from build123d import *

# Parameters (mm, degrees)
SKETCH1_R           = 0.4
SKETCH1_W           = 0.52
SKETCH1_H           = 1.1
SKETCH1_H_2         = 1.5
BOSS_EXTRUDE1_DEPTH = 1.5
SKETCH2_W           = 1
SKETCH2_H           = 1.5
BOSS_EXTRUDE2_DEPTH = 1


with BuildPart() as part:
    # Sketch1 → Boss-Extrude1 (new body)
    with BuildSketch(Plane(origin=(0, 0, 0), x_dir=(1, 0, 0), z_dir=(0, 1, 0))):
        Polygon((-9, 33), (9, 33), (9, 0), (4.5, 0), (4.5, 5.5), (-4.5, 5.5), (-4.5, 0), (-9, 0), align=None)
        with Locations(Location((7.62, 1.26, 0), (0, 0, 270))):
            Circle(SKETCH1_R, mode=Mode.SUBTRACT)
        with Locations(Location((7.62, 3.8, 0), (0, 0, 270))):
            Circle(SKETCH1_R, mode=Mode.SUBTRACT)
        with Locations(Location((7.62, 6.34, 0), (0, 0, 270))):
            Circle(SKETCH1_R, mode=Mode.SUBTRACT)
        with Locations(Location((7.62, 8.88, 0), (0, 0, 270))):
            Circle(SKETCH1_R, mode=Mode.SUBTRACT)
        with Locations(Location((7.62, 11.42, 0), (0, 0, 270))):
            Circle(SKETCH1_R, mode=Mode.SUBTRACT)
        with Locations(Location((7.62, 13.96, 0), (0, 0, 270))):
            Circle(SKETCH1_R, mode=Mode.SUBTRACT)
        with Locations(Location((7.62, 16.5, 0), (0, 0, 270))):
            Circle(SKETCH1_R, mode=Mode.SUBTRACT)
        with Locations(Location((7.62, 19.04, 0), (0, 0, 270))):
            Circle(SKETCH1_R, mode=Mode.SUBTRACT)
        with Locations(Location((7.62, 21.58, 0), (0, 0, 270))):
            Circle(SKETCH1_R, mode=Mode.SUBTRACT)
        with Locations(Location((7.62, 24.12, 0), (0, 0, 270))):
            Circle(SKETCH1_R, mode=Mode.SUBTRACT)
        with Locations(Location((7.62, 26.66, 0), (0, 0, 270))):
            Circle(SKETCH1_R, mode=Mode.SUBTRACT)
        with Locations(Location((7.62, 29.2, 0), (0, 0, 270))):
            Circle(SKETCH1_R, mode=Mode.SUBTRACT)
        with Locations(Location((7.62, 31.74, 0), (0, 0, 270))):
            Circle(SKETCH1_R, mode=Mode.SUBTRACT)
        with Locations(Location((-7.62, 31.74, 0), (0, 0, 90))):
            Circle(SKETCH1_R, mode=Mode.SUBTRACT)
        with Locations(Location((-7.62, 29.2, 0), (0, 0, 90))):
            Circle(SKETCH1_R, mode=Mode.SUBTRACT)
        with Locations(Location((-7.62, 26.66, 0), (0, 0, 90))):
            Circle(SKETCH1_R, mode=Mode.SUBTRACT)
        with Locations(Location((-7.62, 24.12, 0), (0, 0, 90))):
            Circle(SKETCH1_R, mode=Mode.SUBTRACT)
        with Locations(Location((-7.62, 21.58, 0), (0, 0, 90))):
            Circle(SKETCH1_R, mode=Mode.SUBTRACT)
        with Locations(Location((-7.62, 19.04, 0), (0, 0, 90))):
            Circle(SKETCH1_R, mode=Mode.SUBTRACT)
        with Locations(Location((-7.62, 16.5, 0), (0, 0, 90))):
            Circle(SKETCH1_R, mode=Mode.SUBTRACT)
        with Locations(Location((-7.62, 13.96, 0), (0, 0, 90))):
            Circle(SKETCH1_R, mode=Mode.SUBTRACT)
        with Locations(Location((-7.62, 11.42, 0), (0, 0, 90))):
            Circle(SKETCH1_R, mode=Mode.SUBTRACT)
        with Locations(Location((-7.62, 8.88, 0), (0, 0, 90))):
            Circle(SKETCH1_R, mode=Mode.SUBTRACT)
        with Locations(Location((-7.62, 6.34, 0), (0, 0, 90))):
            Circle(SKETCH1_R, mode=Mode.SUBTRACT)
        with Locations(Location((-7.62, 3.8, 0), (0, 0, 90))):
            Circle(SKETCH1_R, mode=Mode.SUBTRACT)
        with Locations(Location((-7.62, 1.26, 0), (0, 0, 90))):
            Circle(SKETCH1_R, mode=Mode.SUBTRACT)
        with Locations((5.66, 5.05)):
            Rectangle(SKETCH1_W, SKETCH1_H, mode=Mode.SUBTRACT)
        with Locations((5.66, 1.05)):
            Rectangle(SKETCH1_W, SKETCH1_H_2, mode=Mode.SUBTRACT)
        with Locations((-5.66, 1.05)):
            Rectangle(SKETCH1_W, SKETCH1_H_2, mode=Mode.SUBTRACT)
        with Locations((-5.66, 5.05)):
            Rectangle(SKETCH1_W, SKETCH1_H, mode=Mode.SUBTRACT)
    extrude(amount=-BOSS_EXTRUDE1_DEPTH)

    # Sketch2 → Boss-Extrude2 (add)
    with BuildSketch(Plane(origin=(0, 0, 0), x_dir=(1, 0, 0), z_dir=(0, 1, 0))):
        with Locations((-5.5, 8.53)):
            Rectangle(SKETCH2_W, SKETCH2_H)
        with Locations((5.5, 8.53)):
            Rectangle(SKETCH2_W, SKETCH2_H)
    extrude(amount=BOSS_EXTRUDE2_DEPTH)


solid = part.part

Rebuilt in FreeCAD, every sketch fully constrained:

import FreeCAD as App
import Part
import Sketcher

V = App.Vector
Q = App.Units.Quantity


def add_polygon(sketch, points):
    """Adds a closed chain of lines whose ends are joined by coincident constraints."""
    first, n = sketch.GeometryCount, len(points)
    for a, b in zip(points, points[1:] + points[:1]):
        sketch.addGeometry(Part.LineSegment(App.Vector(*a, 0), App.Vector(*b, 0)), False)
    for i in range(n):
        sketch.addConstraint(Sketcher.Constraint("Coincident", first + i, 2, first + (i + 1) % n, 1))

doc = App.newDocument("Part")
body = doc.addObject("PartDesign::Body", "Body")

# Sketch on XZ plane
sketch1 = doc.addObject("Sketcher::SketchObject", "Sketch")
body.addObject(sketch1)
sketch1.AttachmentSupport = (doc.XZ_Plane, [""])
sketch1.MapMode = "FlatFace"
add_polygon(sketch1, [(9, -33), (-9, -33), (-9, 0), (-4.5, 0), (-4.5, -5.5), (4.5, -5.5), (4.5, 0), (9, 0)])  # lines 0-7
sketch1.addGeometry(Part.Circle(V(7.62, -1.26, 0), V(0, 0, 1), 0.4), False)  # 8
sketch1.addGeometry(Part.Circle(V(7.62, -3.8, 0), V(0, 0, 1), 0.4), False)  # 9
add_polygon(sketch1, [(5.4, -0.3), (5.4, -1.8), (5.92, -1.8), (5.92, -0.3)])  # lines 10-13
sketch1.addGeometry(Part.Circle(V(7.62, -6.34, 0), V(0, 0, 1), 0.4), False)  # 14
add_polygon(sketch1, [(5.4, -4.5), (5.4, -5.6), (5.92, -5.6), (5.92, -4.5)])  # lines 15-18
sketch1.addGeometry(Part.Circle(V(7.62, -8.88, 0), V(0, 0, 1), 0.4), False)  # 19
sketch1.addGeometry(Part.Circle(V(7.62, -11.42, 0), V(0, 0, 1), 0.4), False)  # 20
sketch1.addGeometry(Part.Circle(V(7.62, -13.96, 0), V(0, 0, 1), 0.4), False)  # 21
add_polygon(sketch1, [(-5.92, -0.3), (-5.92, -1.8), (-5.4, -1.8), (-5.4, -0.3)])  # lines 22-25
sketch1.addGeometry(Part.Circle(V(-7.62, -1.26, 0), V(0, 0, 1), 0.4), False)  # 26
sketch1.addGeometry(Part.Circle(V(-7.62, -3.8, 0), V(0, 0, 1), 0.4), False)  # 27
add_polygon(sketch1, [(-5.92, -4.5), (-5.92, -5.6), (-5.4, -5.6), (-5.4, -4.5)])  # lines 28-31
sketch1.addGeometry(Part.Circle(V(-7.62, -6.34, 0), V(0, 0, 1), 0.4), False)  # 32
sketch1.addGeometry(Part.Circle(V(-7.62, -8.88, 0), V(0, 0, 1), 0.4), False)  # 33
sketch1.addGeometry(Part.Circle(V(-7.62, -11.42, 0), V(0, 0, 1), 0.4), False)  # 34
sketch1.addGeometry(Part.Circle(V(-7.62, -13.96, 0), V(0, 0, 1), 0.4), False)  # 35
sketch1.addGeometry(Part.Circle(V(7.62, -16.5, 0), V(0, 0, 1), 0.4), False)  # 36
sketch1.addGeometry(Part.Circle(V(7.62, -19.04, 0), V(0, 0, 1), 0.4), False)  # 37
sketch1.addGeometry(Part.Circle(V(7.62, -21.58, 0), V(0, 0, 1), 0.4), False)  # 38
sketch1.addGeometry(Part.Circle(V(7.62, -24.12, 0), V(0, 0, 1), 0.4), False)  # 39
sketch1.addGeometry(Part.Circle(V(7.62, -26.66, 0), V(0, 0, 1), 0.4), False)  # 40
sketch1.addGeometry(Part.Circle(V(7.62, -29.2, 0), V(0, 0, 1), 0.4), False)  # 41
sketch1.addGeometry(Part.Circle(V(7.62, -31.74, 0), V(0, 0, 1), 0.4), False)  # 42
sketch1.addGeometry(Part.Circle(V(-7.62, -16.5, 0), V(0, 0, 1), 0.4), False)  # 43
sketch1.addGeometry(Part.Circle(V(-7.62, -19.04, 0), V(0, 0, 1), 0.4), False)  # 44
sketch1.addGeometry(Part.Circle(V(-7.62, -21.58, 0), V(0, 0, 1), 0.4), False)  # 45
sketch1.addGeometry(Part.Circle(V(-7.62, -24.12, 0), V(0, 0, 1), 0.4), False)  # 46
sketch1.addGeometry(Part.Circle(V(-7.62, -26.66, 0), V(0, 0, 1), 0.4), False)  # 47
sketch1.addGeometry(Part.Circle(V(-7.62, -29.2, 0), V(0, 0, 1), 0.4), False)  # 48
sketch1.addGeometry(Part.Circle(V(-7.62, -31.74, 0), V(0, 0, 1), 0.4), False)  # 49
sketch1.addConstraint([
    Sketcher.Constraint("Horizontal", 0),
    Sketcher.Constraint("Vertical", 1),
    Sketcher.Constraint("Horizontal", 2),
    Sketcher.Constraint("Vertical", 3),
    Sketcher.Constraint("Horizontal", 4),
    Sketcher.Constraint("Vertical", 5),
    Sketcher.Constraint("Horizontal", 6),
    Sketcher.Constraint("Vertical", 7),
    Sketcher.Constraint("Vertical", 10),
    Sketcher.Constraint("Horizontal", 11),
    Sketcher.Constraint("Vertical", 12),
    Sketcher.Constraint("Horizontal", 13),
    Sketcher.Constraint("Vertical", 15),
    Sketcher.Constraint("Horizontal", 16),
    Sketcher.Constraint("Vertical", 17),
    Sketcher.Constraint("Horizontal", 18),
    Sketcher.Constraint("Vertical", 22),
    Sketcher.Constraint("Horizontal", 23),
    Sketcher.Constraint("Vertical", 24),
    Sketcher.Constraint("Horizontal", 25),
    Sketcher.Constraint("Vertical", 28),
    Sketcher.Constraint("Horizontal", 29),
    Sketcher.Constraint("Vertical", 30),
    Sketcher.Constraint("Horizontal", 31),
    Sketcher.Constraint("Equal", 8, 9),
    Sketcher.Constraint("Equal", 9, 14),
    Sketcher.Constraint("Equal", 14, 19),
    Sketcher.Constraint("Equal", 19, 20),
    Sketcher.Constraint("Equal", 20, 21),
    Sketcher.Constraint("Equal", 21, 26),
    Sketcher.Constraint("Equal", 26, 27),
    Sketcher.Constraint("Equal", 27, 32),
    Sketcher.Constraint("Equal", 32, 33),
    Sketcher.Constraint("Equal", 33, 34),
    Sketcher.Constraint("Equal", 34, 35),
    Sketcher.Constraint("Equal", 35, 36),
    Sketcher.Constraint("Equal", 36, 37),
    Sketcher.Constraint("Equal", 37, 38),
    Sketcher.Constraint("Equal", 38, 39),
    Sketcher.Constraint("Equal", 39, 40),
    Sketcher.Constraint("Equal", 40, 41),
    Sketcher.Constraint("Equal", 41, 42),
    Sketcher.Constraint("Equal", 42, 43),
    Sketcher.Constraint("Equal", 43, 44),
    Sketcher.Constraint("Equal", 44, 45),
    Sketcher.Constraint("Equal", 45, 46),
    Sketcher.Constraint("Equal", 46, 47),
    Sketcher.Constraint("Equal", 47, 48),
    Sketcher.Constraint("Equal", 48, 49),
    Sketcher.Constraint("Symmetric", 2, 2, 5, 2, -1, 1),
    Sketcher.Constraint("Symmetric", 8, 3, 26, 3, -2),
    Sketcher.Constraint("Symmetric", 9, 3, 27, 3, -2),
    Sketcher.Constraint("Symmetric", 14, 3, 32, 3, -2),
    Sketcher.Constraint("Symmetric", 19, 3, 33, 3, -2),
    Sketcher.Constraint("Symmetric", 20, 3, 34, 3, -2),
    Sketcher.Constraint("Symmetric", 21, 3, 35, 3, -2),
    Sketcher.Constraint("Symmetric", 36, 3, 43, 3, -2),
    Sketcher.Constraint("Symmetric", 37, 3, 44, 3, -2),
    Sketcher.Constraint("Symmetric", 38, 3, 45, 3, -2),
    Sketcher.Constraint("Symmetric", 39, 3, 46, 3, -2),
    Sketcher.Constraint("Symmetric", 40, 3, 47, 3, -2),
    Sketcher.Constraint("Symmetric", 41, 3, 48, 3, -2),
    Sketcher.Constraint("Symmetric", 42, 3, 49, 3, -2),
    Sketcher.Constraint("Symmetric", 1, 2, 6, 2, -2),
    Sketcher.Constraint("Symmetric", 11, 2, 22, 2, -2),
    Sketcher.Constraint("Symmetric", 13, 2, 24, 2, -2),
    Sketcher.Constraint("Symmetric", 16, 2, 28, 2, -2),
    Sketcher.Constraint("Symmetric", 18, 2, 30, 2, -2),
    Sketcher.Constraint("Vertical", 8, 3, 9, 3),
    Sketcher.Constraint("Vertical", 9, 3, 14, 3),
    Sketcher.Constraint("Vertical", 14, 3, 19, 3),
    Sketcher.Constraint("Vertical", 19, 3, 20, 3),
    Sketcher.Constraint("Vertical", 20, 3, 21, 3),
    Sketcher.Constraint("Vertical", 21, 3, 36, 3),
    Sketcher.Constraint("Vertical", 36, 3, 37, 3),
    Sketcher.Constraint("Vertical", 37, 3, 38, 3),
    Sketcher.Constraint("Vertical", 38, 3, 39, 3),
    Sketcher.Constraint("Vertical", 39, 3, 40, 3),
    Sketcher.Constraint("Vertical", 40, 3, 41, 3),
    Sketcher.Constraint("Vertical", 41, 3, 42, 3),
    Sketcher.Constraint("Vertical", 13, 2, 15, 2),
    Sketcher.Constraint("Vertical", 12, 2, 16, 2),
    Sketcher.Constraint("Diameter", 8, Q("0.8 mm")),
    Sketcher.Constraint("DistanceX", 0, 2, 0, 1, Q("18 mm")),
    Sketcher.Constraint("DistanceX", 4, 1, 4, 2, Q("9 mm")),
    Sketcher.Constraint("DistanceY", 1, 1, 1, 2, Q("33 mm")),
    Sketcher.Constraint("DistanceY", 3, 2, 3, 1, Q("5.5 mm")),
    Sketcher.Constraint("DistanceY", 10, 2, 10, 1, Q("1.5 mm")),
    Sketcher.Constraint("DistanceY", 15, 2, 15, 1, Q("1.1 mm")),
    Sketcher.Constraint("DistanceY", 9, 3, 10, 2, Q("2 mm")),
    Sketcher.Constraint("DistanceY", 4, 2, 17, 2, Q("1 mm")),
    Sketcher.Constraint("DistanceX", 11, 1, 11, 2, Q("0.52 mm")),
    Sketcher.Constraint("DistanceY", 9, 3, -1, 1, Q("3.8 mm")),
    Sketcher.Constraint("DistanceY", 36, 3, -1, 1, Q("16.5 mm")),
    Sketcher.Constraint("DistanceY", 41, 3, -1, 1, Q("29.2 mm")),
    Sketcher.Constraint("DistanceX", -1, 1, 10, 2, Q("5.4 mm")),
    Sketcher.Constraint("DistanceY", 21, 3, 8, 3, Q("12.7 mm")),
    Sketcher.Constraint("DistanceY", 37, 3, 14, 3, Q("12.7 mm")),
    Sketcher.Constraint("DistanceY", 38, 3, 19, 3, Q("12.7 mm")),
    Sketcher.Constraint("DistanceY", 39, 3, 20, 3, Q("12.7 mm")),
    Sketcher.Constraint("DistanceY", 40, 3, 21, 3, Q("12.7 mm")),
    Sketcher.Constraint("DistanceY", 42, 3, 37, 3, Q("12.7 mm")),
    Sketcher.Constraint("DistanceX", 11, 2, 8, 3, Q("1.7 mm")),
    Sketcher.Constraint("DistanceY", 8, 3, -1, 1, Q("1.26 mm")),
    Sketcher.Constraint("DistanceY", 14, 3, -1, 1, Q("6.34 mm")),
    Sketcher.Constraint("DistanceY", 19, 3, -1, 1, Q("8.88 mm")),
    Sketcher.Constraint("DistanceY", 20, 3, -1, 1, Q("11.42 mm")),
])
pad1 = doc.addObject("PartDesign::Pad", "Pad")
body.addObject(pad1)
pad1.Profile = sketch1
pad1.Length = 1.5

# Sketch on XZ plane
sketch2 = doc.addObject("Sketcher::SketchObject", "Sketch001")
body.addObject(sketch2)
sketch2.AttachmentSupport = (doc.XZ_Plane, [""])
sketch2.MapMode = "FlatFace"
add_polygon(sketch2, [(-6, -9.3), (-6, -7.8), (-5, -7.8), (-5, -9.3)])  # lines 0-3
add_polygon(sketch2, [(5, -9.3), (5, -7.8), (6, -7.8), (6, -9.3)])  # lines 4-7
sketch2.addConstraint([
    Sketcher.Constraint("Vertical", 0),
    Sketcher.Constraint("Horizontal", 1),
    Sketcher.Constraint("Vertical", 2),
    Sketcher.Constraint("Horizontal", 3),
    Sketcher.Constraint("Vertical", 4),
    Sketcher.Constraint("Horizontal", 5),
    Sketcher.Constraint("Vertical", 6),
    Sketcher.Constraint("Horizontal", 7),
    Sketcher.Constraint("Symmetric", 1, 2, 4, 2, -2),
    Sketcher.Constraint("Symmetric", 3, 2, 6, 2, -2),
    Sketcher.Constraint("DistanceX", 1, 1, 1, 2, Q("1 mm")),
    Sketcher.Constraint("DistanceY", 0, 1, 0, 2, Q("1.5 mm")),
    Sketcher.Constraint("DistanceX", 0, 2, -1, 1, Q("6 mm")),
    Sketcher.Constraint("DistanceY", 0, 2, -1, 1, Q("7.78 mm")),
])
pad2 = doc.addObject("PartDesign::Pad", "Pad001")
body.addObject(pad2)
pad2.Profile = sketch2
pad2.Length = 1
pad2.Reversed = True

doc.recompute()
